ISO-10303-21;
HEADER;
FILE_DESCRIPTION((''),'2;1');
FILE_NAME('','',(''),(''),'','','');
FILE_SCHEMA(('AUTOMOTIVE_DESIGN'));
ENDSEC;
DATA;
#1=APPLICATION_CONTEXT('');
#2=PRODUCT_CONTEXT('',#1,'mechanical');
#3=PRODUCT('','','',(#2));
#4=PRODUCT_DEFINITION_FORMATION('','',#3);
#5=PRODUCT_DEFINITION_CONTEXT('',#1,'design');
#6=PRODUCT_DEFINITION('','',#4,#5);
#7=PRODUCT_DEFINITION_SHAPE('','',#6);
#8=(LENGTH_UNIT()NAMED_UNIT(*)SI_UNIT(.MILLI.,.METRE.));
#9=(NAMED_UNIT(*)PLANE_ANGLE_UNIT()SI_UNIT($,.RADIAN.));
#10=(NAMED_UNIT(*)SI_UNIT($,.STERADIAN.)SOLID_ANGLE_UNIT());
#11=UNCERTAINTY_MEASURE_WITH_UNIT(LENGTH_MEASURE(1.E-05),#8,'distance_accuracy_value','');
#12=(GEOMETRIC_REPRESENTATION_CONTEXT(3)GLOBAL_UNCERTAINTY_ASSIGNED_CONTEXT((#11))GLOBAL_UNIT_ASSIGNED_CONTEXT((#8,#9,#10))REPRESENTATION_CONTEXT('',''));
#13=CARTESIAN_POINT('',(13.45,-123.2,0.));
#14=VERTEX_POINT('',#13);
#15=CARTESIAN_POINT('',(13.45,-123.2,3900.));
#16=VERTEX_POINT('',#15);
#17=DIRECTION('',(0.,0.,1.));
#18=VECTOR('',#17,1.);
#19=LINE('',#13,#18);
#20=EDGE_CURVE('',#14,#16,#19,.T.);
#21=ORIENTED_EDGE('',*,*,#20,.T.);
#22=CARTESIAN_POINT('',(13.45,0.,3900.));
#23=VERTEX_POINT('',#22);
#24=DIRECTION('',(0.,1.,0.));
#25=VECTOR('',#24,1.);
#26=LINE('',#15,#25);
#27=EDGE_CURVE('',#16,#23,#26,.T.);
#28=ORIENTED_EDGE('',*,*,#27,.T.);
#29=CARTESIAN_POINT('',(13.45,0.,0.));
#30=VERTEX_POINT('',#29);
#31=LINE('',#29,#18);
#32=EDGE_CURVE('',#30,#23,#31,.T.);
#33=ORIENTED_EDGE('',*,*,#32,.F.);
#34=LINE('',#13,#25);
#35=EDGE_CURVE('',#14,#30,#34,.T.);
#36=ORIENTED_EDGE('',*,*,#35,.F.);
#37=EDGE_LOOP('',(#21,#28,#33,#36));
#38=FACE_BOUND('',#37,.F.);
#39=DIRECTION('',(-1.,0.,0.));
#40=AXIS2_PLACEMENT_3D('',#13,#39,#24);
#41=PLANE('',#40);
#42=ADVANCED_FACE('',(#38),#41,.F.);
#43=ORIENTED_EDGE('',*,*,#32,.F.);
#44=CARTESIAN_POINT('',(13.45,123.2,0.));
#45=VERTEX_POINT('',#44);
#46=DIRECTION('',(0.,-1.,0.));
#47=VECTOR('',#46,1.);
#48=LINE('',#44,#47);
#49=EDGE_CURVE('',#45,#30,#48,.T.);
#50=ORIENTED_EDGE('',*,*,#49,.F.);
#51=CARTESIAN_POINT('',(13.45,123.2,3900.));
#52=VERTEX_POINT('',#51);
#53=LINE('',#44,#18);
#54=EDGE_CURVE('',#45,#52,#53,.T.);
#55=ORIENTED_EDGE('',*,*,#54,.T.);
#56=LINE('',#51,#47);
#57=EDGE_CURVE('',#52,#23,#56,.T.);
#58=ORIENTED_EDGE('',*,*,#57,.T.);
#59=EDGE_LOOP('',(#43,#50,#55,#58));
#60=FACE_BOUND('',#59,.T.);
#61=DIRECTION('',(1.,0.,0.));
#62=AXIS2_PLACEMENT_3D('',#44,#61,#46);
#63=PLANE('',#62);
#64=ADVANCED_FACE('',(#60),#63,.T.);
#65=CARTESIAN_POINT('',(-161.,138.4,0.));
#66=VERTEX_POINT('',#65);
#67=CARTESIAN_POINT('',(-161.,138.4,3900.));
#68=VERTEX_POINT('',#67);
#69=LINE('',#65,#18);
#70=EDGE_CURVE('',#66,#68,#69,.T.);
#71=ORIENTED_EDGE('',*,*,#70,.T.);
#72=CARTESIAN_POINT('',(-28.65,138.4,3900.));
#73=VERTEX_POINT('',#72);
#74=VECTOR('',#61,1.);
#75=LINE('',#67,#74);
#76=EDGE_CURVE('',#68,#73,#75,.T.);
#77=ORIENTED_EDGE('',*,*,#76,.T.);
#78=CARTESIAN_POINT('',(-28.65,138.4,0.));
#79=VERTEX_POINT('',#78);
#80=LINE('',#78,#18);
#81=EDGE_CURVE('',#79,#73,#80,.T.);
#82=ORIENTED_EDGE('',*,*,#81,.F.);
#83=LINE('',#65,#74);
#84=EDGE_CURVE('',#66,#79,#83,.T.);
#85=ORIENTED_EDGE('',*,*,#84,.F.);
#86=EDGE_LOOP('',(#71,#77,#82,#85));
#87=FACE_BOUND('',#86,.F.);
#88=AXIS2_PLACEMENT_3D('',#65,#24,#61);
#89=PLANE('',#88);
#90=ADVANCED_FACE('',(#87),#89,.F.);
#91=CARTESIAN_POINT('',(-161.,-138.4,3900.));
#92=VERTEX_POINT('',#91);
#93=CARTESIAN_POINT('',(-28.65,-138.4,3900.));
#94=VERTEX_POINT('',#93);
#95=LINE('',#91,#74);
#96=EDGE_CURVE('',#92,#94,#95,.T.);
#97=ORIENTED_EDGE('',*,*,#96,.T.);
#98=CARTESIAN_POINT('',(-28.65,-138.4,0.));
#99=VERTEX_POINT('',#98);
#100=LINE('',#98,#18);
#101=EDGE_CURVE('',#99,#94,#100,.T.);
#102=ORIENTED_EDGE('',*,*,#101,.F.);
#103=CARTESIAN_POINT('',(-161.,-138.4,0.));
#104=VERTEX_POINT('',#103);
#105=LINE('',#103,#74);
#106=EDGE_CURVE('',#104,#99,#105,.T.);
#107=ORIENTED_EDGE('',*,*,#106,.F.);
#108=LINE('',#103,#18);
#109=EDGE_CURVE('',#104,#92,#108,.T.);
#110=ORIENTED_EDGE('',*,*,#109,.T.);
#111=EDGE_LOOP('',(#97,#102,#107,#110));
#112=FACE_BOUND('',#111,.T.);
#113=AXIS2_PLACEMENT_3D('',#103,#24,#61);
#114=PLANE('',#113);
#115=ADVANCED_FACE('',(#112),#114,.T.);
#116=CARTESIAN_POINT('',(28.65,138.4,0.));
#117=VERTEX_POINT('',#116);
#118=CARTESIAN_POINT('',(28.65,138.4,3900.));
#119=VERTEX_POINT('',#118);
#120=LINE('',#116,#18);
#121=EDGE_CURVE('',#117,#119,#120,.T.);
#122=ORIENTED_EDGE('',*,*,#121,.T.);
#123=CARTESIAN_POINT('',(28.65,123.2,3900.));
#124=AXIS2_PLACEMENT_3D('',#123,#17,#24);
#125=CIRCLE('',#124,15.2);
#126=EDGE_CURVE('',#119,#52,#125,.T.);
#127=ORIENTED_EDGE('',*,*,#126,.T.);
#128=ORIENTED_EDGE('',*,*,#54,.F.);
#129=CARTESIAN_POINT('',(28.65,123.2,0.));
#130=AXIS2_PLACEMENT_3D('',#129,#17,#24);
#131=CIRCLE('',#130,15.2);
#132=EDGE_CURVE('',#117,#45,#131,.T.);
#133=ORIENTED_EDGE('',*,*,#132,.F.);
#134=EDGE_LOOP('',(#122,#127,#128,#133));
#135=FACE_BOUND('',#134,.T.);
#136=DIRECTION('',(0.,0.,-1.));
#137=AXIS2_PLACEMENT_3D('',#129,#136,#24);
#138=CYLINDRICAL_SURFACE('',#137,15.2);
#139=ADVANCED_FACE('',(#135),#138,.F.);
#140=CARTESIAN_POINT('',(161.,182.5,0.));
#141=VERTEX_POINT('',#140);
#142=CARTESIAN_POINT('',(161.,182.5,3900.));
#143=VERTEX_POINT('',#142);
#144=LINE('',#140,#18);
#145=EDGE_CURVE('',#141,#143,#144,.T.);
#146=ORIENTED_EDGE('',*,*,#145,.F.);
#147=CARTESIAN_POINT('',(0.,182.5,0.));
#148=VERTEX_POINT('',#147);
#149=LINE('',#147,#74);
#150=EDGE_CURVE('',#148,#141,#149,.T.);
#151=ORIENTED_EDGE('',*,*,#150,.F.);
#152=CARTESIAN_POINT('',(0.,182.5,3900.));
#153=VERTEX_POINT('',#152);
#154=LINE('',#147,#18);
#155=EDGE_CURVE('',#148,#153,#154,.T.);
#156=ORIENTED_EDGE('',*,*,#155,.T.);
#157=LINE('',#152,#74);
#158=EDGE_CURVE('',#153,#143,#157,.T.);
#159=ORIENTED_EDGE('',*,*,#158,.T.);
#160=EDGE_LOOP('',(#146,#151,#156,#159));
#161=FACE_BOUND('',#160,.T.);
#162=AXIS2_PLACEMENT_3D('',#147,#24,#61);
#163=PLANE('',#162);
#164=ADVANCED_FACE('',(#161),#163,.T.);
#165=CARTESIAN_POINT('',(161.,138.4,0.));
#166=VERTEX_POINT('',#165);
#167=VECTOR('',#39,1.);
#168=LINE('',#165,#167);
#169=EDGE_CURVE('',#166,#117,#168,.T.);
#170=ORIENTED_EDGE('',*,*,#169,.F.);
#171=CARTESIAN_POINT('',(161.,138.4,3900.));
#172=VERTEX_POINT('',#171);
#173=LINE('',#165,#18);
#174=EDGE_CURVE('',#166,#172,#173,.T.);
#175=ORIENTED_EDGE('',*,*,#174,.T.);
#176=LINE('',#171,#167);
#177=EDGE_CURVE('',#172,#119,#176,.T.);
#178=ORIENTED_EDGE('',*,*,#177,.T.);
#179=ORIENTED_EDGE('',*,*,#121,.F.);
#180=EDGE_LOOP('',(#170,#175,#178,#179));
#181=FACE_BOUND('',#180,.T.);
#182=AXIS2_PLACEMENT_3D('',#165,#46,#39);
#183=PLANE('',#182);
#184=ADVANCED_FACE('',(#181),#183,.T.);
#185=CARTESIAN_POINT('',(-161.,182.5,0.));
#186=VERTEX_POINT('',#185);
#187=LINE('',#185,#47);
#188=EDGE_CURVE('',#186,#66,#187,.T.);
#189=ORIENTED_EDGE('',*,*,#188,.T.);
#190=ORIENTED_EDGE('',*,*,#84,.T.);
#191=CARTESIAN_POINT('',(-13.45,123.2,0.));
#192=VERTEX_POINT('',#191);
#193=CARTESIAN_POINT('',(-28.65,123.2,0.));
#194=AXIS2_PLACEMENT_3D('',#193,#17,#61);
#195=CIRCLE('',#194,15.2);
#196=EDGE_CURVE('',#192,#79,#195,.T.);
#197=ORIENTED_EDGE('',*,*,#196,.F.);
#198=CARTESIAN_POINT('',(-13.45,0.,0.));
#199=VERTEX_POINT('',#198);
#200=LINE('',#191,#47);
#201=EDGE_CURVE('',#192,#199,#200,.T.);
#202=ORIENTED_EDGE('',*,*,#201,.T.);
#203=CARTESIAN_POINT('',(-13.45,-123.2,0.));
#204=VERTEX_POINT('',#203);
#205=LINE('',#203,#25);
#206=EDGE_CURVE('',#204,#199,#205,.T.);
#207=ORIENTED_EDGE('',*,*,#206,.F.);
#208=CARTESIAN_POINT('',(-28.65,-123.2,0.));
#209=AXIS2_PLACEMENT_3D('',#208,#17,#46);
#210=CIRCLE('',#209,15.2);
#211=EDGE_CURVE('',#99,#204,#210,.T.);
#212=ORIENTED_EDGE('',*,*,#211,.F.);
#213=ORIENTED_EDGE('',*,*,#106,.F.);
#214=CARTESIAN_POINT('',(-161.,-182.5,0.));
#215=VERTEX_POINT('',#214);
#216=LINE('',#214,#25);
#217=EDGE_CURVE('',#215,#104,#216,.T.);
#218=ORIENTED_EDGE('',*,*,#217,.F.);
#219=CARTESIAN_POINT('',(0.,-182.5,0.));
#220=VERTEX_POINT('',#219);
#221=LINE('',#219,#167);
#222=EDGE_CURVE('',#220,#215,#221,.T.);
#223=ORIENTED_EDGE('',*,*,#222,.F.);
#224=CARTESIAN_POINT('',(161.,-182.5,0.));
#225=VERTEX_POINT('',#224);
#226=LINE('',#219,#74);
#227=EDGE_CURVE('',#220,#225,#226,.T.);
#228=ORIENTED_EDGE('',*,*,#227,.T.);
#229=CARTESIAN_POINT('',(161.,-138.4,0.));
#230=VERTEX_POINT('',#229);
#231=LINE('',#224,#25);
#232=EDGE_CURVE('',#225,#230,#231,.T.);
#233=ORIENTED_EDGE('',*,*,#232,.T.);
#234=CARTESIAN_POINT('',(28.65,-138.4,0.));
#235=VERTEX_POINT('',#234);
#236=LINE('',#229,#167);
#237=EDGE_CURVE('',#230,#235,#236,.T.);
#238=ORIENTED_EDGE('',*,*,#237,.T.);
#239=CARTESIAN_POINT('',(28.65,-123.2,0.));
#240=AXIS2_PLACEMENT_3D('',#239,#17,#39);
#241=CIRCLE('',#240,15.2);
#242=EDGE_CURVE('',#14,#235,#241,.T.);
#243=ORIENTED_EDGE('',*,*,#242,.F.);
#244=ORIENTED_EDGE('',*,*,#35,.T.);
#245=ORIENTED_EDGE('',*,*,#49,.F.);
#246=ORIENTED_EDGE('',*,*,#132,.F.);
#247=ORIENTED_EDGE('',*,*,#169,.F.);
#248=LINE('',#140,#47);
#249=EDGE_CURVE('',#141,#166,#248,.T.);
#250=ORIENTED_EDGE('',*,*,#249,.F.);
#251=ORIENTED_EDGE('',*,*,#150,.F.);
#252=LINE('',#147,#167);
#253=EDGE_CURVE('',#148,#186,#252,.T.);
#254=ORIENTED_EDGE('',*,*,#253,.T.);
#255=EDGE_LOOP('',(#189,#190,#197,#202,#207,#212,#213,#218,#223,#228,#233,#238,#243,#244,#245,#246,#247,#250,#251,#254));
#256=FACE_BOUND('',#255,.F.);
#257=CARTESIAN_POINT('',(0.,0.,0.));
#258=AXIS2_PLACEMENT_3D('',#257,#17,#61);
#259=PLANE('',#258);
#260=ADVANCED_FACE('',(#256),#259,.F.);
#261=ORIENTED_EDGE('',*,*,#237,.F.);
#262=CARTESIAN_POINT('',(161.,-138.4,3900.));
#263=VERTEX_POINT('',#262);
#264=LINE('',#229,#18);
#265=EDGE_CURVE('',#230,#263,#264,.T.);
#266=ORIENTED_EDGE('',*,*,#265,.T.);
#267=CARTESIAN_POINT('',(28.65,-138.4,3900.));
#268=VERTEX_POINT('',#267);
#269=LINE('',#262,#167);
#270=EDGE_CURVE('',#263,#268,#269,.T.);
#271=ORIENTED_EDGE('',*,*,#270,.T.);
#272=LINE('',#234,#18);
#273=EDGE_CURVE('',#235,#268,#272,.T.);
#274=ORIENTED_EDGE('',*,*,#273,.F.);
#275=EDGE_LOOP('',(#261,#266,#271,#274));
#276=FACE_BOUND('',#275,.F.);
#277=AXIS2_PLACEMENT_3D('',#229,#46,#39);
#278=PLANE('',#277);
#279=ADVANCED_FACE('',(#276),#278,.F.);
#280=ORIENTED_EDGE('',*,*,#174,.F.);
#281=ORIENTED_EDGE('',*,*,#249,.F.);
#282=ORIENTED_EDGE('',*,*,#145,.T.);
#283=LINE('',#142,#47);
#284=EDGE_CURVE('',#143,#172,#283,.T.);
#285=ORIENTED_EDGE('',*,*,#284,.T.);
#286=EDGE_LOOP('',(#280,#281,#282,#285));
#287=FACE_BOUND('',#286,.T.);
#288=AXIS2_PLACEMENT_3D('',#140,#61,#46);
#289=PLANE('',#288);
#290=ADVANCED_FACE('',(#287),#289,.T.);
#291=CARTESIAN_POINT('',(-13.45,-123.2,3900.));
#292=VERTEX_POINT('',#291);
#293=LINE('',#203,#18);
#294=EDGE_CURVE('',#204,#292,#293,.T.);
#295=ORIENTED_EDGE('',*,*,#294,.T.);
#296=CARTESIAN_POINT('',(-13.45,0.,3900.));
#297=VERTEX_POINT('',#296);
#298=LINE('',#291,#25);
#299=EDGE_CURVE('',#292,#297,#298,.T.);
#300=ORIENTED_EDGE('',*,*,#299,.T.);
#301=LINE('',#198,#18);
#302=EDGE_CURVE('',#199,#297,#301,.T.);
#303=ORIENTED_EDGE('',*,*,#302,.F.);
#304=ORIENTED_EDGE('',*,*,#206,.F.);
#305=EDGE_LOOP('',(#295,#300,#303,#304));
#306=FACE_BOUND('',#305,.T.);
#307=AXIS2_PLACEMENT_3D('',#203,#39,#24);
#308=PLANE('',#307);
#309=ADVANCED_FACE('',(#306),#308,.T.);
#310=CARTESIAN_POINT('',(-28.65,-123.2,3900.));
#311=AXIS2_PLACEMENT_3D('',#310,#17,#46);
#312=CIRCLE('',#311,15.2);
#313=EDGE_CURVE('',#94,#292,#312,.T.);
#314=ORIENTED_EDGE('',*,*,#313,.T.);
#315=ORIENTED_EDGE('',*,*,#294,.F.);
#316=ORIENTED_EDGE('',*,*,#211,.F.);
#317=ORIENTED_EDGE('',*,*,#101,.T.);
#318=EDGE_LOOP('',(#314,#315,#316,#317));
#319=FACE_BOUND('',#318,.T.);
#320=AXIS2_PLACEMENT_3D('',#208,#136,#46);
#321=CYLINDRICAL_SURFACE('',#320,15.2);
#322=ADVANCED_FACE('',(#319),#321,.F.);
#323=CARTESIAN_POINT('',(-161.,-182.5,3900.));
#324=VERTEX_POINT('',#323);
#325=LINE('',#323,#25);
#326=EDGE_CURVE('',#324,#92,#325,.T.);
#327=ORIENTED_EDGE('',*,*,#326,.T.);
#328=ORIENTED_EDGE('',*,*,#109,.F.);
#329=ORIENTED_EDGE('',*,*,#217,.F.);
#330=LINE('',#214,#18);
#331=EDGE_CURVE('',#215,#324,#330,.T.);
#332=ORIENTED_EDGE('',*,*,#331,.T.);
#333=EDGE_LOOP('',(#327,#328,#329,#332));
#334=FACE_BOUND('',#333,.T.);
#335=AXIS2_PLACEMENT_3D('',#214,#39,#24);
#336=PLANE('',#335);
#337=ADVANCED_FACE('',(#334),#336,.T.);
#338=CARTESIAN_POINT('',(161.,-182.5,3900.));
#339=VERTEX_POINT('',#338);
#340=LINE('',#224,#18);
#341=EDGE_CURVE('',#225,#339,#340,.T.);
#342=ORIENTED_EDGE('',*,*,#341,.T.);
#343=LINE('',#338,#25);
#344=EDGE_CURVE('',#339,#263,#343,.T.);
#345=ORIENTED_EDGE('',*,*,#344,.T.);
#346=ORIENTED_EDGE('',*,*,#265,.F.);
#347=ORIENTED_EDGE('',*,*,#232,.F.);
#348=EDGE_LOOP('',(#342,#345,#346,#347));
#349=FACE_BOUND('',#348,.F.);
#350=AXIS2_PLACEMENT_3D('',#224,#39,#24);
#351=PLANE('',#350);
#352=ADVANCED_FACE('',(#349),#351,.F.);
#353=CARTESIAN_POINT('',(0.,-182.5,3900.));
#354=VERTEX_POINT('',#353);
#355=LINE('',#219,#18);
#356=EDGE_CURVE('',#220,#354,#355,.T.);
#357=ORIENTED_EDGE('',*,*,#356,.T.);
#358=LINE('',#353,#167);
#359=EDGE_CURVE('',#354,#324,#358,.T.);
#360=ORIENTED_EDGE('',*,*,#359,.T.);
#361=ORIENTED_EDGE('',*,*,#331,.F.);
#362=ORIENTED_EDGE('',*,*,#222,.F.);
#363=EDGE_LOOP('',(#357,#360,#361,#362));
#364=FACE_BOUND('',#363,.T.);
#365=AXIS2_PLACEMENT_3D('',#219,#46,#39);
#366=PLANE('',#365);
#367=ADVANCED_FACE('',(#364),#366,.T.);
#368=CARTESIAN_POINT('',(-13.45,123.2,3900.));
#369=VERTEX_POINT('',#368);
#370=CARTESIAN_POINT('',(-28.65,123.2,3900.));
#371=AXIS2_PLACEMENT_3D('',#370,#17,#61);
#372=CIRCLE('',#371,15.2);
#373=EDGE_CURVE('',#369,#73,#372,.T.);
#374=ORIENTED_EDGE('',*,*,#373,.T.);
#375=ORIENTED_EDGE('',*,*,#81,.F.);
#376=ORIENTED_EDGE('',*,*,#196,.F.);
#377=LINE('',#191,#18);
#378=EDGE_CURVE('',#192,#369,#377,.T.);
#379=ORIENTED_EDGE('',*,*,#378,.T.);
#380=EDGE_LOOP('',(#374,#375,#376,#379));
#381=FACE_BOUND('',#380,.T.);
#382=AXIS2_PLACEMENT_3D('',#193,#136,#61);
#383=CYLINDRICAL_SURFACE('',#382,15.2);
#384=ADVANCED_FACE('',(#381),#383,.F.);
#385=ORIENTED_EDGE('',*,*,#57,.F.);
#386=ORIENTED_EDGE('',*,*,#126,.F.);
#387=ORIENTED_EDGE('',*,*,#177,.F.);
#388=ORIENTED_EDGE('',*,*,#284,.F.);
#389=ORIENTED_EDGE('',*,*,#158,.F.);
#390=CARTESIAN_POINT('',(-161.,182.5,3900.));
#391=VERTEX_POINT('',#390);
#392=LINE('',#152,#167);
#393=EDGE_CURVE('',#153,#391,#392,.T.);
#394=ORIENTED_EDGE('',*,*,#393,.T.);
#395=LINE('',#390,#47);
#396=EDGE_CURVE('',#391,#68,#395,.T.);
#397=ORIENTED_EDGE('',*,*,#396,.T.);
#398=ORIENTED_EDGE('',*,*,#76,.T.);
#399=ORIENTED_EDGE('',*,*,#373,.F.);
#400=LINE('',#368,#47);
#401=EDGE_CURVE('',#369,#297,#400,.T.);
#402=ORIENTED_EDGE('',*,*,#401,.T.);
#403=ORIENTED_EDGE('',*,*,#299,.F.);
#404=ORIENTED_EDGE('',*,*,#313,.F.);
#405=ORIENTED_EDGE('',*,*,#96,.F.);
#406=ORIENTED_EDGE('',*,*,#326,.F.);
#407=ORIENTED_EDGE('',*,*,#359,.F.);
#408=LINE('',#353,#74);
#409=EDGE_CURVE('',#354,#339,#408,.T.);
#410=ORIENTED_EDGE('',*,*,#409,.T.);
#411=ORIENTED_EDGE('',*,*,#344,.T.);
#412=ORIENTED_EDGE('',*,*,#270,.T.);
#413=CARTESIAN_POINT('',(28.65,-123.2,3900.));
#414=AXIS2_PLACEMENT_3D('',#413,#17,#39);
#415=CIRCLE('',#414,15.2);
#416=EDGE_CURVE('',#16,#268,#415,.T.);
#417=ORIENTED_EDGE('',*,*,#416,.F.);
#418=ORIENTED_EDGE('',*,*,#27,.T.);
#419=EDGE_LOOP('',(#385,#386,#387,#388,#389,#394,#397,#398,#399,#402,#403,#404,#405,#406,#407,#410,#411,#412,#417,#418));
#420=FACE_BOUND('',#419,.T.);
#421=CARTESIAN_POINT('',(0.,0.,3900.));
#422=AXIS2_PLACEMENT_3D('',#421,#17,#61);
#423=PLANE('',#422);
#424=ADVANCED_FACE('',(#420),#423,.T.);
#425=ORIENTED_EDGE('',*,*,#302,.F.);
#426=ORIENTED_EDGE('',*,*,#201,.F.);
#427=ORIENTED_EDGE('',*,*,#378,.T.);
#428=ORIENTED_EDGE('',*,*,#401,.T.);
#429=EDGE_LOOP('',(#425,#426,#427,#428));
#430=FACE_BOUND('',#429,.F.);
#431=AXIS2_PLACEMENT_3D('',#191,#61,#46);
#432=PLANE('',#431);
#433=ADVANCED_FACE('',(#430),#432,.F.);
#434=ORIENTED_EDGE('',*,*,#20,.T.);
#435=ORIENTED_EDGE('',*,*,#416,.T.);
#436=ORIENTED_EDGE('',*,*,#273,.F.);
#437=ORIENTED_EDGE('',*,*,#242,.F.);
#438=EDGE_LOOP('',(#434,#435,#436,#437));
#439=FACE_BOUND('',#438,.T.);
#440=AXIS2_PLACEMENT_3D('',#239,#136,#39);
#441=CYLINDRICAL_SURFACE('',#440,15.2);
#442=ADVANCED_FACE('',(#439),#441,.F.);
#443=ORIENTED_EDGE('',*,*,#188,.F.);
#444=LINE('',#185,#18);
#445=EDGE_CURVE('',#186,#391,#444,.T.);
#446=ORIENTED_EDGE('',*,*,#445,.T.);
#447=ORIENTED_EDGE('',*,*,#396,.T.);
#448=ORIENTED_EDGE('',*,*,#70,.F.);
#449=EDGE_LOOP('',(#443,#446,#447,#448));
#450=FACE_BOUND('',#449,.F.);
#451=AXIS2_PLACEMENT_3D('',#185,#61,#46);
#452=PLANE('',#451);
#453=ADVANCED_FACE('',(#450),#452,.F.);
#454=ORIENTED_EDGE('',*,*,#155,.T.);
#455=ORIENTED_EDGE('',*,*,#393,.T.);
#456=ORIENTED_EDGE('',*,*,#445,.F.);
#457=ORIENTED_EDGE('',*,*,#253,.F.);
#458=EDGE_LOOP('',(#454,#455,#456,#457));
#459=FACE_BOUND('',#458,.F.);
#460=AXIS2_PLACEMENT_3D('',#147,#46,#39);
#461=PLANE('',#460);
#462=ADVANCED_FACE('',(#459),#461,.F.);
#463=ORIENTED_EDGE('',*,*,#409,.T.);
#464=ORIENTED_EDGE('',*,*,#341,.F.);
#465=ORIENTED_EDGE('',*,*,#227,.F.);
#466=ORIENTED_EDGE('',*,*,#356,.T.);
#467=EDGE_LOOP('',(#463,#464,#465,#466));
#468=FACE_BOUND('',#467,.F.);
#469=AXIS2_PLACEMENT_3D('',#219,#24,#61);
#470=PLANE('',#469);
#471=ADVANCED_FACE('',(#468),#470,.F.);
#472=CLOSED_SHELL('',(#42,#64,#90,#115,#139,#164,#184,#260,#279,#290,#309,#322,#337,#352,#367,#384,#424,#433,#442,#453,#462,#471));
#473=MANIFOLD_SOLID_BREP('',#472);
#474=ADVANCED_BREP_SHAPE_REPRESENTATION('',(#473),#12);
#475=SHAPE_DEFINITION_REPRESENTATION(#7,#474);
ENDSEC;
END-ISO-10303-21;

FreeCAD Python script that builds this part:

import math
import FreeCAD as App
import Part
import Sketcher

V = App.Vector

doc = App.newDocument("Part")
body = doc.addObject("PartDesign::Body", "Body")

sketch1 = body.newObject("Sketcher::SketchObject", "Sketch")
sketch1.AttachmentSupport = (doc.getObject("XY_Plane"), [""])
sketch1.MapMode = "FlatFace"
sketch1.addGeometry(Part.LineSegment(V(-161, -138.4, 0), V(-161, -182.5, 0)), False)
sketch1.addGeometry(Part.LineSegment(V(-161, -182.5, 0), V(161, -182.5, 0)), False)
sketch1.addGeometry(Part.LineSegment(V(161, -182.5, 0), V(161, -138.4, 0)), False)
sketch1.addGeometry(Part.LineSegment(V(161, -138.4, 0), V(28.65, -138.4, 0)), False)
sketch1.addGeometry(Part.ArcOfCircle(Part.Circle(V(28.65, -123.2, 0), V(0, 0, 1), 15.2), math.radians(180), math.radians(270)), False)
sketch1.addGeometry(Part.LineSegment(V(13.45, -123.2, 0), V(13.45, 123.2, 0)), False)
sketch1.addGeometry(Part.ArcOfCircle(Part.Circle(V(28.65, 123.2, 0), V(0, 0, 1), 15.2), math.radians(90), math.radians(180)), False)
sketch1.addGeometry(Part.LineSegment(V(28.65, 138.4, 0), V(161, 138.4, 0)), False)
sketch1.addGeometry(Part.LineSegment(V(161, 138.4, 0), V(161, 182.5, 0)), False)
sketch1.addGeometry(Part.LineSegment(V(161, 182.5, 0), V(-161, 182.5, 0)), False)
sketch1.addGeometry(Part.LineSegment(V(-161, 182.5, 0), V(-161, 138.4, 0)), False)
sketch1.addGeometry(Part.LineSegment(V(-161, 138.4, 0), V(-28.65, 138.4, 0)), False)
sketch1.addGeometry(Part.ArcOfCircle(Part.Circle(V(-28.65, 123.2, 0), V(0, 0, 1), 15.2), math.radians(0), math.radians(90)), False)
sketch1.addGeometry(Part.LineSegment(V(-13.45, 123.2, 0), V(-13.45, -123.2, 0)), False)
sketch1.addGeometry(Part.ArcOfCircle(Part.Circle(V(-28.65, -123.2, 0), V(0, 0, 1), 15.2), math.radians(-90), math.radians(0)), False)
sketch1.addGeometry(Part.LineSegment(V(-28.65, -138.4, 0), V(-161, -138.4, 0)), False)
sketch1.addConstraint(Sketcher.Constraint("Coincident", 0, 2, 1, 1))
sketch1.addConstraint(Sketcher.Constraint("Coincident", 1, 2, 2, 1))
sketch1.addConstraint(Sketcher.Constraint("Coincident", 2, 2, 3, 1))
sketch1.addConstraint(Sketcher.Constraint("Tangent", 3, 2, 4, 2))
sketch1.addConstraint(Sketcher.Constraint("Tangent", 4, 1, 5, 1))
sketch1.addConstraint(Sketcher.Constraint("Tangent", 5, 2, 6, 2))
sketch1.addConstraint(Sketcher.Constraint("Tangent", 6, 1, 7, 1))
sketch1.addConstraint(Sketcher.Constraint("Coincident", 7, 2, 8, 1))
sketch1.addConstraint(Sketcher.Constraint("Coincident", 8, 2, 9, 1))
sketch1.addConstraint(Sketcher.Constraint("Coincident", 9, 2, 10, 1))
sketch1.addConstraint(Sketcher.Constraint("Coincident", 10, 2, 11, 1))
sketch1.addConstraint(Sketcher.Constraint("Tangent", 11, 2, 12, 2))
sketch1.addConstraint(Sketcher.Constraint("Tangent", 12, 1, 13, 1))
sketch1.addConstraint(Sketcher.Constraint("Tangent", 13, 2, 14, 2))
sketch1.addConstraint(Sketcher.Constraint("Tangent", 14, 1, 15, 1))
sketch1.addConstraint(Sketcher.Constraint("Coincident", 15, 2, 0, 1))
sketch1.addConstraint(Sketcher.Constraint("Vertical", 0))
sketch1.addConstraint(Sketcher.Constraint("Horizontal", 1))
sketch1.addConstraint(Sketcher.Constraint("Vertical", 2))
sketch1.addConstraint(Sketcher.Constraint("Horizontal", 3))
sketch1.addConstraint(Sketcher.Constraint("Vertical", 5))
sketch1.addConstraint(Sketcher.Constraint("Horizontal", 7))
sketch1.addConstraint(Sketcher.Constraint("Vertical", 8))
sketch1.addConstraint(Sketcher.Constraint("Horizontal", 9))
sketch1.addConstraint(Sketcher.Constraint("Vertical", 10))
sketch1.addConstraint(Sketcher.Constraint("Horizontal", 11))
sketch1.addConstraint(Sketcher.Constraint("Vertical", 13))
sketch1.addConstraint(Sketcher.Constraint("Horizontal", 15))
sketch1.addConstraint(Sketcher.Constraint("Equal", 4, 6))
sketch1.addConstraint(Sketcher.Constraint("Equal", 6, 12))
sketch1.addConstraint(Sketcher.Constraint("Equal", 12, 14))
sketch1.addConstraint(Sketcher.Constraint("Symmetric", 4, 3, 12, 3, -1, 1))
sketch1.addConstraint(Sketcher.Constraint("Symmetric", 0, 2, 8, 2, -1, 1))
sketch1.addConstraint(Sketcher.Constraint("Symmetric", 7, 2, 10, 2, -2))
sketch1.addConstraint(Sketcher.Constraint("Symmetric", 2, 2, 15, 2, -2))
sketch1.addConstraint(Sketcher.Constraint("Radius", 4, 15.2))
sketch1.addConstraint(Sketcher.Constraint("DistanceY", 0, 2, 0, 1, 44.1))
sketch1.addConstraint(Sketcher.Constraint("DistanceX", 0, 2, -1, 1, 161.0))
sketch1.addConstraint(Sketcher.Constraint("DistanceY", 0, 2, -1, 1, 182.5))
sketch1.addConstraint(Sketcher.Constraint("DistanceX", -1, 1, 4, 1, 13.45))
pad1 = body.newObject("PartDesign::Pad", "Pad")
pad1.Profile = sketch1
pad1.Length = 3900

doc.recompute()
